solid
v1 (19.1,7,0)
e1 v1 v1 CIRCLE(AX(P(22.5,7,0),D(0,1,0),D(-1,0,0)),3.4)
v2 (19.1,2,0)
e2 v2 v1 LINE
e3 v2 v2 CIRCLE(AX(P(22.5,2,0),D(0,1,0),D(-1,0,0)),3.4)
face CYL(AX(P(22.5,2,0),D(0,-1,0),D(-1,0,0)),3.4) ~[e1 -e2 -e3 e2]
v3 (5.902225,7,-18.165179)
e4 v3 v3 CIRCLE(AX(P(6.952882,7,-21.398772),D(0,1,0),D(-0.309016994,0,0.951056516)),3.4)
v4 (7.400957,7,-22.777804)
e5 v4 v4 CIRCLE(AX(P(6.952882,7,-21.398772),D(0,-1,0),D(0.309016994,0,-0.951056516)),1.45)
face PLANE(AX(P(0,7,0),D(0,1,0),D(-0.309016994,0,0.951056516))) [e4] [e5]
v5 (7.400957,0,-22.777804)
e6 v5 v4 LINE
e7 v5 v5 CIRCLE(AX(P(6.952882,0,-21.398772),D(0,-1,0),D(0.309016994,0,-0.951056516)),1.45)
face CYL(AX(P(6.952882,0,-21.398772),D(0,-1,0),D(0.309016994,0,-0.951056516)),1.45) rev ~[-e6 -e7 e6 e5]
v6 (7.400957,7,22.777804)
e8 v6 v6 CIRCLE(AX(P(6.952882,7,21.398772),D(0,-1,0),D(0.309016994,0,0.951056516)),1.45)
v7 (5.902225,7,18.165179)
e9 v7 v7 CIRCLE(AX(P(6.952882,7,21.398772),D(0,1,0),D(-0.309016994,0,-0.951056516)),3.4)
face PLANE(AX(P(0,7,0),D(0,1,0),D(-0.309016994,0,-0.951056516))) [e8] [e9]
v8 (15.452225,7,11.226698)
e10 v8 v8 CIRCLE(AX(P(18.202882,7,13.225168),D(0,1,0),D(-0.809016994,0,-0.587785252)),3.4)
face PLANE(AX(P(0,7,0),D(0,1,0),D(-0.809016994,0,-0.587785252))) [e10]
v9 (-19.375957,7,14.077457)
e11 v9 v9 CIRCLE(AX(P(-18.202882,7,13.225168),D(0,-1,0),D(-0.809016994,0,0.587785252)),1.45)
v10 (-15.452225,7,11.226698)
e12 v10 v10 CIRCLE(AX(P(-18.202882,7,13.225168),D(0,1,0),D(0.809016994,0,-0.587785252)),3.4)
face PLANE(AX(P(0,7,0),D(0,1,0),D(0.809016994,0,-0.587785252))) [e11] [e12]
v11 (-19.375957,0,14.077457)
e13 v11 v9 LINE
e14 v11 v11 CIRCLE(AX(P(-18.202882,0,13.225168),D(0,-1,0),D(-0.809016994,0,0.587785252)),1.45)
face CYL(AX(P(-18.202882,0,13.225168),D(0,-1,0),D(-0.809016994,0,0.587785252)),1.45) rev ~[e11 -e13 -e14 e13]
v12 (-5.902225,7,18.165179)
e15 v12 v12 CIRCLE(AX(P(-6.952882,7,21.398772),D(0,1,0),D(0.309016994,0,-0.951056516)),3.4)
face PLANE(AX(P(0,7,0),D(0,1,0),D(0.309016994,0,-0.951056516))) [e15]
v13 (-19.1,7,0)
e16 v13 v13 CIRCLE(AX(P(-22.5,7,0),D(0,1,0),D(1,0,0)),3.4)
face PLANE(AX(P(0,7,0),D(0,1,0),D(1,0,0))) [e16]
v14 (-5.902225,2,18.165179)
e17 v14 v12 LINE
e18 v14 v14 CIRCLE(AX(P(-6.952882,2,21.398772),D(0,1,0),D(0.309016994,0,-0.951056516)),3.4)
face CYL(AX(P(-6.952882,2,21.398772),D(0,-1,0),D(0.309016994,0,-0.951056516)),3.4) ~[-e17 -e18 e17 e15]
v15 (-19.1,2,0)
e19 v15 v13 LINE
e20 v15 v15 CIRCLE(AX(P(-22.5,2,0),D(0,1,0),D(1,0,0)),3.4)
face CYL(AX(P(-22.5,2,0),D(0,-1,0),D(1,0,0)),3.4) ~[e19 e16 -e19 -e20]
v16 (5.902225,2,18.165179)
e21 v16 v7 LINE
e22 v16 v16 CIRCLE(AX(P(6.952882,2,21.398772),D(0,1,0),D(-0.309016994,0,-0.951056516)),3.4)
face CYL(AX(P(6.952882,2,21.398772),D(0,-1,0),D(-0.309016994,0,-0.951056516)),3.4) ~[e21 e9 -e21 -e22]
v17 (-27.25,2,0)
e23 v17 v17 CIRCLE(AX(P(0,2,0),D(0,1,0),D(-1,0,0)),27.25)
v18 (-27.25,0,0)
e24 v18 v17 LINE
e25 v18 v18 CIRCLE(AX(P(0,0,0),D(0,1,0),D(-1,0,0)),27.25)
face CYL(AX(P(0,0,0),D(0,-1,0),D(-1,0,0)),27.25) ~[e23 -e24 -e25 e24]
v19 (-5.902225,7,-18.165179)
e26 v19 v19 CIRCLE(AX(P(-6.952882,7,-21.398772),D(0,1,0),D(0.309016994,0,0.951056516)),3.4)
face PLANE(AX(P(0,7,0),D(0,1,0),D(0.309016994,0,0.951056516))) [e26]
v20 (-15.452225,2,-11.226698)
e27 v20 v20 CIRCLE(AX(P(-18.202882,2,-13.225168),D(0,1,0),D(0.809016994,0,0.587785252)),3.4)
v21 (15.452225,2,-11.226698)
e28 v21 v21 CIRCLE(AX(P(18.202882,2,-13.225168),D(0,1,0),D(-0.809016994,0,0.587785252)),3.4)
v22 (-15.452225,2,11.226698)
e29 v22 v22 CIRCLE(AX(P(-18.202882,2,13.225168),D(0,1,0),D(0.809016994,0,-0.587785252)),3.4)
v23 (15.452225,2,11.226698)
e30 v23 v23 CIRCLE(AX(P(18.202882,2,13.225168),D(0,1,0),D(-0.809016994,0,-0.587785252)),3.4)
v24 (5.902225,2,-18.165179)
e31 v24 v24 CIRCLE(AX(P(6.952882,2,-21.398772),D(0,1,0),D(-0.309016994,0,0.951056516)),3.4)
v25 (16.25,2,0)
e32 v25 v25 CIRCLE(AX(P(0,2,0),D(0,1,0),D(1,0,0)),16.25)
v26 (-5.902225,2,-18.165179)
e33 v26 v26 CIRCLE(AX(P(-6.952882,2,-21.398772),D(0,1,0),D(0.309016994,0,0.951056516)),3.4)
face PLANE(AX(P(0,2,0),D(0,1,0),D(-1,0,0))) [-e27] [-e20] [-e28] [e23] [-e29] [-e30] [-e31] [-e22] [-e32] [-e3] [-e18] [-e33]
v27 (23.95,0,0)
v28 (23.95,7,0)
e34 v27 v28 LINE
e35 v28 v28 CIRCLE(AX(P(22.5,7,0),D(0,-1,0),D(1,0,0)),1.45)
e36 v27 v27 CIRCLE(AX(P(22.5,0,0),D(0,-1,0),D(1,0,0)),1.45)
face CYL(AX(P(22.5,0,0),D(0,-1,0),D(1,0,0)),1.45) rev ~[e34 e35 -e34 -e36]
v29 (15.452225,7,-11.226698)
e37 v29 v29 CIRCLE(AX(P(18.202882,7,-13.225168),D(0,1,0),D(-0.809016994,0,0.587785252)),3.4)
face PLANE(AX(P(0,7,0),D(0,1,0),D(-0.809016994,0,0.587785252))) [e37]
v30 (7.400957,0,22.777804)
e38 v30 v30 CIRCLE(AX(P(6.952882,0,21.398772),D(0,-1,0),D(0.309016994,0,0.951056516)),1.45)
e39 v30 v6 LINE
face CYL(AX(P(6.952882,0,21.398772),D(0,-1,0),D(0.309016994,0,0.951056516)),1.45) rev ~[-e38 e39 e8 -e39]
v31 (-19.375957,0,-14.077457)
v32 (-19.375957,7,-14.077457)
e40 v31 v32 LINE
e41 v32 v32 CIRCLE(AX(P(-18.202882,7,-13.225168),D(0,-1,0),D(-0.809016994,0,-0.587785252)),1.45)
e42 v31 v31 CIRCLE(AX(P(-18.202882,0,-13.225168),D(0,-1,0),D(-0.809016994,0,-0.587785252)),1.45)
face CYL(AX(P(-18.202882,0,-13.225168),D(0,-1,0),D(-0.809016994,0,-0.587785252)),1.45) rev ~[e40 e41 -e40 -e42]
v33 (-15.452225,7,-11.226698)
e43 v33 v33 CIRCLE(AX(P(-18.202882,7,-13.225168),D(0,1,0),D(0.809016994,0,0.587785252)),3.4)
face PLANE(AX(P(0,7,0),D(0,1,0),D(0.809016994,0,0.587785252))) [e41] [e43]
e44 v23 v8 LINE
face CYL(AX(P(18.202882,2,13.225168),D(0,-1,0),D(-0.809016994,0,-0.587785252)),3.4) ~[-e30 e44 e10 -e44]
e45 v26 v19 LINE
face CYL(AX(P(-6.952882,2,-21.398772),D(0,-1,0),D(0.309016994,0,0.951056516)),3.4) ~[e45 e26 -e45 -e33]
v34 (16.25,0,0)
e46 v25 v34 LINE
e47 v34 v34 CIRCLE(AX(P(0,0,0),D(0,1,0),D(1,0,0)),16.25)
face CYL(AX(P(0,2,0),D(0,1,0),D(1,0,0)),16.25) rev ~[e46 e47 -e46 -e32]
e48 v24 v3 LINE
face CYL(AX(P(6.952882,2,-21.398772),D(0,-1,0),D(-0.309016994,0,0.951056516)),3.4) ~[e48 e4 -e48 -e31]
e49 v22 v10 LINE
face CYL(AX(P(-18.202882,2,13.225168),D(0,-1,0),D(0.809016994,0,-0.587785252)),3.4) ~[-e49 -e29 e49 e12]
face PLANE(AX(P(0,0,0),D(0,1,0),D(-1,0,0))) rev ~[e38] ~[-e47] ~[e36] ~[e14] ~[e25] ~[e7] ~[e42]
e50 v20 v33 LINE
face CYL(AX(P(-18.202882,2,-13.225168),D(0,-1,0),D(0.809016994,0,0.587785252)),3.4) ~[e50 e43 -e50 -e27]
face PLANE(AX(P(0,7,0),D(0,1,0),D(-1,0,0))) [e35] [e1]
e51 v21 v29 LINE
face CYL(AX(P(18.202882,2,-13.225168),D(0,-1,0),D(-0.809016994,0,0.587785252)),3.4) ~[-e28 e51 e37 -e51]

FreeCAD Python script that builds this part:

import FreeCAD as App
import Part
import Sketcher
Q = App.Units.Quantity

doc = App.newDocument("Part")
body = doc.addObject("PartDesign::Body", "Body")

# Sketch on XZ plane
sketch1 = doc.addObject("Sketcher::SketchObject", "Sketch")
body.addObject(sketch1)
sketch1.AttachmentSupport = (doc.XZ_Plane, [""])
sketch1.MapMode = "FlatFace"
sketch1.addGeometry(Part.Circle(App.Vector(0, 0, 0), App.Vector(0, 0, 1), 27.25), False)
sketch1.addConstraint([
    Sketcher.Constraint("Coincident", 0, 3, -1, 1),
    Sketcher.Constraint("Diameter", 0, Q("54.5 mm")),
])
pad1 = doc.addObject("PartDesign::Pad", "Pad")
body.addObject(pad1)
pad1.Profile = sketch1
pad1.Length = 2
pad1.Reversed = True

# Sketch on XZ plane
sketch2 = doc.addObject("Sketcher::SketchObject", "Sketch001")
body.addObject(sketch2)
sketch2.AttachmentSupport = (doc.XZ_Plane, [""])
sketch2.MapMode = "FlatFace"
sketch2.AttachmentOffset = App.Placement(App.Vector(0, 0, -2), App.Rotation())
sketch2.addGeometry(Part.Circle(App.Vector(-22.5, 0, 0), App.Vector(0, 0, 1), 3.4), False)
sketch2.addConstraint([
    Sketcher.Constraint("PointOnObject", 0, 3, -1),
    Sketcher.Constraint("Diameter", 0, Q("6.8 mm")),
    Sketcher.Constraint("DistanceX", 0, 3, -1, 1, Q("22.5 mm")),
])
pad2 = doc.addObject("PartDesign::Pad", "Pad001")
body.addObject(pad2)
pad2.Profile = sketch2
pad2.Length = 5
pad2.Reversed = True
doc.recompute()

polarpattern = doc.addObject("PartDesign::PolarPattern", "PolarPattern")
body.addObject(polarpattern)
polarpattern.Originals = [pad2]
polarpattern.Axis = (doc.Y_Axis, [""])
polarpattern.Angle = 360
polarpattern.Occurrences = 10
body.Tip = polarpattern

# Sketch on XZ plane
sketch3 = doc.addObject("Sketcher::SketchObject", "Sketch002")
body.addObject(sketch3)
sketch3.AttachmentSupport = (doc.XZ_Plane, [""])
sketch3.MapMode = "FlatFace"
sketch3.addGeometry(Part.Circle(App.Vector(22.5, 0, 0), App.Vector(0, 0, 1), 1.45), False)
sketch3.addConstraint([
    Sketcher.Constraint("PointOnObject", 0, 3, -1),
    Sketcher.Constraint("Diameter", 0, Q("2.9 mm")),
    Sketcher.Constraint("DistanceX", -1, 1, 0, 3, Q("22.5 mm")),
])
pocket1 = doc.addObject("PartDesign::Pocket", "Pocket")
body.addObject(pocket1)
pocket1.Profile = sketch3
pocket1.Length = 7
doc.recompute()

polarpattern2 = doc.addObject("PartDesign::PolarPattern", "PolarPattern001")
body.addObject(polarpattern2)
polarpattern2.Originals = [pocket1]
polarpattern2.Axis = (doc.Y_Axis, [""])
polarpattern2.Angle = 360
polarpattern2.Occurrences = 5
body.Tip = polarpattern2

# Sketch on XZ plane
sketch4 = doc.addObject("Sketcher::SketchObject", "Sketch003")
body.addObject(sketch4)
sketch4.AttachmentSupport = (doc.XZ_Plane, [""])
sketch4.MapMode = "FlatFace"
sketch4.AttachmentOffset = App.Placement(App.Vector(0, 0, -2), App.Rotation())
sketch4.addGeometry(Part.Circle(App.Vector(0, 0, 0), App.Vector(0, 0, 1), 16.25), False)
sketch4.addConstraint([
    Sketcher.Constraint("Coincident", 0, 3, -1, 1),
    Sketcher.Constraint("Diameter", 0, Q("32.5 mm")),
])
pocket2 = doc.addObject("PartDesign::Pocket", "Pocket001")
body.addObject(pocket2)
pocket2.Profile = sketch4
pocket2.Length = 2
pocket2.Reversed = True

doc.recompute()
